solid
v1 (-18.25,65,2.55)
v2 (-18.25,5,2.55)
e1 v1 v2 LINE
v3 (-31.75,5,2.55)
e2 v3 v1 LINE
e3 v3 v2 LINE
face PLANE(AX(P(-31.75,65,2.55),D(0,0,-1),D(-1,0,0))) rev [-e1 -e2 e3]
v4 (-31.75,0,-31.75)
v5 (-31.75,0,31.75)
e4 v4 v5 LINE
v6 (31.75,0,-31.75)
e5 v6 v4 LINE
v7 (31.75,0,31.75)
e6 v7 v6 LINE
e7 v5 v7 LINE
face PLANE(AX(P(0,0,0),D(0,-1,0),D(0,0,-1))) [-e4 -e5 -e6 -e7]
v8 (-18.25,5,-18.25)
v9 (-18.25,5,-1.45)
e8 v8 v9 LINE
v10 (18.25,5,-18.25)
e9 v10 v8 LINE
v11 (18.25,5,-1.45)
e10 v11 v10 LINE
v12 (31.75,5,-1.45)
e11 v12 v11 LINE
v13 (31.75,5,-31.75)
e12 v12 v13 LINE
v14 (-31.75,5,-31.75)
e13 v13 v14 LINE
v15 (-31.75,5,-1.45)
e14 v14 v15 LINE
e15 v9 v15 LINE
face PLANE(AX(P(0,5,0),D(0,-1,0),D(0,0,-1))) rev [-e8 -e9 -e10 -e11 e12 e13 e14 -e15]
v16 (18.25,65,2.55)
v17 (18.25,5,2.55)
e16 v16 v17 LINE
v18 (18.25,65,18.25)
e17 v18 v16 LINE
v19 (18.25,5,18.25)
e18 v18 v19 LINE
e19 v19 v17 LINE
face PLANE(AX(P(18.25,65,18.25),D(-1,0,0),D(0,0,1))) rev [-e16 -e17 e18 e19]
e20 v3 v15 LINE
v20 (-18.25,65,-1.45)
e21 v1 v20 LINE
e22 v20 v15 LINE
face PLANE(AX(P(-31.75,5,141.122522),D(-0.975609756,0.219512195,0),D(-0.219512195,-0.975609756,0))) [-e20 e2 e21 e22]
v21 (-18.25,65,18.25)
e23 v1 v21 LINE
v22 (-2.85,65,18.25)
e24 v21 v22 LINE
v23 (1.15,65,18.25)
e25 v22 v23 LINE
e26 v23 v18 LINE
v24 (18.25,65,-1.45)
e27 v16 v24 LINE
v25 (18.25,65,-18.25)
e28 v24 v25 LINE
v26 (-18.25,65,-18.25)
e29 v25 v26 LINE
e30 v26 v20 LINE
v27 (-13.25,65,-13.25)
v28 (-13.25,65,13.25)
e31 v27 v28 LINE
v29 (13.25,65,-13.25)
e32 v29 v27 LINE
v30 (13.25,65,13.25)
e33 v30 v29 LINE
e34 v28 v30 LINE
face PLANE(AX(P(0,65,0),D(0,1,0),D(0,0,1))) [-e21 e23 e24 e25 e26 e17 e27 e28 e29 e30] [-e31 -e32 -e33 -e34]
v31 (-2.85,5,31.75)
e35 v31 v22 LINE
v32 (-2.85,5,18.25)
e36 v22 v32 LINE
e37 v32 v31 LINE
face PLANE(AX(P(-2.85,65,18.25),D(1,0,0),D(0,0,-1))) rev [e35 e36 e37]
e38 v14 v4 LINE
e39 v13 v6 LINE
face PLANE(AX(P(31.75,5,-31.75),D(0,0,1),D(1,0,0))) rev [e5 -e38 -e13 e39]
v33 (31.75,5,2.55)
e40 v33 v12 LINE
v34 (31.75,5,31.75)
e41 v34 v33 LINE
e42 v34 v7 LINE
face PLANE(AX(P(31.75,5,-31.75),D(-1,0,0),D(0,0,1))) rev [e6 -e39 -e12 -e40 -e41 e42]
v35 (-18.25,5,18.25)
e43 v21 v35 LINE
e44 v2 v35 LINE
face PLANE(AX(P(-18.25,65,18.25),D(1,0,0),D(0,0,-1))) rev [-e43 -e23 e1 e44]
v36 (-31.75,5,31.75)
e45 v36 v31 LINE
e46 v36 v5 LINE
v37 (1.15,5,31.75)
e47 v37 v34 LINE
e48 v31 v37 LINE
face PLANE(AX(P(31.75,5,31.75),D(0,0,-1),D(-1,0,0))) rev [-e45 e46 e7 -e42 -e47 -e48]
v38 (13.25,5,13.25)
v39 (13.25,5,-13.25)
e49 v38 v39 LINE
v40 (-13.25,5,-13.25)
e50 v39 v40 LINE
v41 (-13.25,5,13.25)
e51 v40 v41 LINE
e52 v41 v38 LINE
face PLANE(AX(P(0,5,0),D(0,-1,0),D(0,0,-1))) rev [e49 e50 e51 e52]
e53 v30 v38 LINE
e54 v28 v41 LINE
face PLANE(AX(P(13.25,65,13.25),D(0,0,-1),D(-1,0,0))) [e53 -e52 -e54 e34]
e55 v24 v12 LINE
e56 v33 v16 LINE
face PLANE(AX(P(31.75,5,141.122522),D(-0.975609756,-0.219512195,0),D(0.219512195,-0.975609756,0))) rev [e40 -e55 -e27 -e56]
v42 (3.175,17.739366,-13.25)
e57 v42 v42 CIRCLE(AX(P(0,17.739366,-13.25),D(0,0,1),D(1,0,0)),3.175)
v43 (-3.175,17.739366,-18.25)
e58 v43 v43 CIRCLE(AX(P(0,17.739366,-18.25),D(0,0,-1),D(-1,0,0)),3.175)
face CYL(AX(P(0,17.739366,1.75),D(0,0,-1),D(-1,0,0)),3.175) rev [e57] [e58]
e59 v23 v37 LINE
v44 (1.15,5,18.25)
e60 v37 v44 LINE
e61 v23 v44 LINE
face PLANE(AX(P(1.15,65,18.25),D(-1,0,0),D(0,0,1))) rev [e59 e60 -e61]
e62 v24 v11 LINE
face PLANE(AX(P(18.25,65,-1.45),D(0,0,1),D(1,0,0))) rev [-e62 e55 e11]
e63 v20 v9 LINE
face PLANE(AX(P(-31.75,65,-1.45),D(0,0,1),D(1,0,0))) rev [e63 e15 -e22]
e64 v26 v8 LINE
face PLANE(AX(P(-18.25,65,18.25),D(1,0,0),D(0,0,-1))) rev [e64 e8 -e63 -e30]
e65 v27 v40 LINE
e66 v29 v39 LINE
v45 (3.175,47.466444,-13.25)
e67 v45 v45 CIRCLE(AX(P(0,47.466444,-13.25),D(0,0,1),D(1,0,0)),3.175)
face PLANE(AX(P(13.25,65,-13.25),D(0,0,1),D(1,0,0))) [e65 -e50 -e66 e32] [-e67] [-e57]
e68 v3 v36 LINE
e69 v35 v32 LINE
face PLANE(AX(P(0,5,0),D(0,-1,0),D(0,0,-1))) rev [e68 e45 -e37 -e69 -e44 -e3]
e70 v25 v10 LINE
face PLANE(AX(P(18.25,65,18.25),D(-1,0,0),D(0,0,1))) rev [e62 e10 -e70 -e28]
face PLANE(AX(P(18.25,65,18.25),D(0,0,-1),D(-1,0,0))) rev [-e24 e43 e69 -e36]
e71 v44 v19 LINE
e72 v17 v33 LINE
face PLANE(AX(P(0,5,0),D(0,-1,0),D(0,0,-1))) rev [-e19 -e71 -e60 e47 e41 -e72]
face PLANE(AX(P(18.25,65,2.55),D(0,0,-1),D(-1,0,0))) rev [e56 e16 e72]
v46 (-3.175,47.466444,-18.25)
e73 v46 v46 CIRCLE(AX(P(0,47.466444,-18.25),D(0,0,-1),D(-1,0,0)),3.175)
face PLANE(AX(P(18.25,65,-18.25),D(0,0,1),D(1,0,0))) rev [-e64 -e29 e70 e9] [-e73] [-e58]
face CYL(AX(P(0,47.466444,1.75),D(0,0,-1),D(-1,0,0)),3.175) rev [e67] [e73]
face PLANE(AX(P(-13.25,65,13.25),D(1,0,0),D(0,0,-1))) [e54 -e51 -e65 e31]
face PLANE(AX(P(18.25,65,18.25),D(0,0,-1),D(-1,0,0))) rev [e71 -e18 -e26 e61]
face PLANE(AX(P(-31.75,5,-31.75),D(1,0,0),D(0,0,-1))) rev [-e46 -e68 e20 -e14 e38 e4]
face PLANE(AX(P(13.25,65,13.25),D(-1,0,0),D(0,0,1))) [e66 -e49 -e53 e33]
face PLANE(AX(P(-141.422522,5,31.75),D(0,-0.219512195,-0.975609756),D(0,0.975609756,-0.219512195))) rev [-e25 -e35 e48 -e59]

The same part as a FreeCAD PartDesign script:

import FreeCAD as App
import Part
import Sketcher

V = App.Vector
Q = App.Units.Quantity


def add_polygon(sketch, points):
    """Adds a closed chain of lines whose ends are joined by coincident constraints."""
    first, n = sketch.GeometryCount, len(points)
    for a, b in zip(points, points[1:] + points[:1]):
        sketch.addGeometry(Part.LineSegment(App.Vector(*a, 0), App.Vector(*b, 0)), False)
    for i in range(n):
        sketch.addConstraint(Sketcher.Constraint("Coincident", first + i, 2, first + (i + 1) % n, 1))

doc = App.newDocument("Part")
body = doc.addObject("PartDesign::Body", "Body")

# Sketch on XZ plane
sketch1 = body.newObject("Sketcher::SketchObject", "Sketch")
sketch1.AttachmentSupport = (doc.getObject("XZ_Plane"), [""])
sketch1.MapMode = "FlatFace"
add_polygon(sketch1, [(-32, -32), (-32, 32), (32, 32), (32, -32)])  # lines 0-3
sketch1.addConstraint([
    Sketcher.Constraint("Vertical", 0),
    Sketcher.Constraint("Horizontal", 1),
    Sketcher.Constraint("Vertical", 2),
    Sketcher.Constraint("Horizontal", 3),
    Sketcher.Constraint("Symmetric", 0, 2, 2, 2, -1, 1),
    Sketcher.Constraint("Equal", 3, 0),
    Sketcher.Constraint("DistanceX", 1, 1, 1, 2, Q("63.5 mm")),
])
pad1 = body.newObject("PartDesign::Pad", "Pad")
pad1.Profile = sketch1
pad1.Length = 5
pad1.Reversed = True

# Sketch on XZ plane
sketch2 = body.newObject("Sketcher::SketchObject", "Sketch001")
sketch2.AttachmentSupport = (doc.getObject("XZ_Plane"), [""])
sketch2.MapMode = "FlatFace"
sketch2.AttachmentOffset = App.Placement(V(0, 0, -5), App.Rotation())
add_polygon(sketch2, [(-18, -18), (-18, 18), (18, 18), (18, -18)])  # lines 0-3
add_polygon(sketch2, [(13, 13), (-13, 13), (-13, -13), (13, -13)])  # lines 4-7
sketch2.addConstraint([
    Sketcher.Constraint("Vertical", 0),
    Sketcher.Constraint("Horizontal", 1),
    Sketcher.Constraint("Vertical", 2),
    Sketcher.Constraint("Horizontal", 3),
    Sketcher.Constraint("Horizontal", 4),
    Sketcher.Constraint("Vertical", 5),
    Sketcher.Constraint("Horizontal", 6),
    Sketcher.Constraint("Vertical", 7),
    Sketcher.Constraint("Symmetric", 0, 2, 2, 2, -1, 1),
    Sketcher.Constraint("Symmetric", 4, 2, 6, 2, -1, 1),
    Sketcher.Constraint("Equal", 3, 0),
    Sketcher.Constraint("Equal", 6, 5),
    Sketcher.Constraint("DistanceX", 1, 1, 1, 2, Q("36.5 mm")),
    Sketcher.Constraint("DistanceX", 4, 2, 4, 1, Q("26.5 mm")),
])
pad2 = body.newObject("PartDesign::Pad", "Pad001")
pad2.Profile = sketch2
pad2.Length = 60
pad2.Reversed = True

# Sketch on XZ plane
sketch3 = body.newObject("Sketcher::SketchObject", "Sketch002")
sketch3.AttachmentSupport = (doc.getObject("XZ_Plane"), [""])
sketch3.MapMode = "FlatFace"
sketch3.AttachmentOffset = App.Placement(V(0, 0, -5), App.Rotation())
add_polygon(sketch3, [(-31.8, -1.4), (-31.8, 2.5), (-18.2, 2.5), (-18.2, -1.4)])  # lines 0-3
sketch3.addConstraint([
    Sketcher.Constraint("Vertical", 0),
    Sketcher.Constraint("Horizontal", 1),
    Sketcher.Constraint("Vertical", 2),
    Sketcher.Constraint("Horizontal", 3),
    Sketcher.Constraint("DistanceY", 0, 1, 0, 2, Q("4 mm")),
    Sketcher.Constraint("DistanceX", 1, 1, 1, 2, Q("13.5 mm")),
    Sketcher.Constraint("DistanceX", 0, 2, -1, 1, Q("31.75 mm")),
    Sketcher.Constraint("DistanceY", -1, 1, 0, 2, Q("2.55 mm")),
])
pad3 = body.newObject("PartDesign::Pad", "Pad002")
pad3.Profile = sketch3
pad3.Length = 60
pad3.Reversed = True

# Sketch on XY plane
sketch4 = body.newObject("Sketcher::SketchObject", "Sketch003")
sketch4.AttachmentSupport = (doc.getObject("XY_Plane"), [""])
sketch4.MapMode = "FlatFace"
sketch4.AttachmentOffset = App.Placement(V(0, 0, 2.55), App.Rotation())
add_polygon(sketch4, [(-72, -175), (22, 245), (-338, 326), (-433, -94)])  # lines 0-3
sketch4.addConstraint([
    Sketcher.Constraint("Perpendicular", 0, 1),
    Sketcher.Constraint("Perpendicular", 1, 2),
    Sketcher.Constraint("Perpendicular", 2, 3),
    Sketcher.Constraint("DistanceY", -1, 1, 0, 2, Q("245.219999 mm")),
    Sketcher.Constraint("DistanceY", 3, 2, -1, 1, Q("175.219999 mm")),
    Sketcher.Constraint("DistanceX", 1, 2, 0, 2, Q("360.439998 mm")),
    Sketcher.Constraint("DistanceY", -1, 1, 1, 2, Q("326.318999 mm")),
    Sketcher.Constraint("DistanceX", -1, 1, 0, 2, Q("22.2995 mm")),
])
pocket1 = body.newObject("PartDesign::Pocket", "Pocket")
pocket1.Profile = sketch4
pocket1.Type = "ThroughAll"
pocket1.Midplane = True

# Sketch on XZ plane
sketch5 = body.newObject("Sketcher::SketchObject", "Sketch004")
sketch5.AttachmentSupport = (doc.getObject("XZ_Plane"), [""])
sketch5.MapMode = "FlatFace"
sketch5.AttachmentOffset = App.Placement(V(0, 0, -5), App.Rotation())
add_polygon(sketch5, [(18.2, -1.4), (18.2, 2.5), (31.8, 2.5), (31.8, -1.4)])  # lines 0-3
sketch5.addConstraint([
    Sketcher.Constraint("Vertical", 0),
    Sketcher.Constraint("Horizontal", 1),
    Sketcher.Constraint("Vertical", 2),
    Sketcher.Constraint("Horizontal", 3),
    Sketcher.Constraint("DistanceY", 0, 1, 0, 2, Q("4 mm")),
    Sketcher.Constraint("DistanceX", 1, 1, 1, 2, Q("13.5 mm")),
    Sketcher.Constraint("DistanceX", -1, 1, 0, 2, Q("18.25 mm")),
    Sketcher.Constraint("DistanceY", -1, 1, 0, 2, Q("2.55 mm")),
])
pad4 = body.newObject("PartDesign::Pad", "Pad003")
pad4.Profile = sketch5
pad4.Length = 60
pad4.Reversed = True

# Sketch on XY plane
sketch6 = body.newObject("Sketcher::SketchObject", "Sketch005")
sketch6.AttachmentSupport = (doc.getObject("XY_Plane"), [""])
sketch6.MapMode = "FlatFace"
sketch6.AttachmentOffset = App.Placement(V(0, 0, 2.55), App.Rotation())
add_polygon(sketch6, [(-22, 245), (72, -175), (433, -94), (338, 326)])  # lines 0-3
sketch6.addConstraint([
    Sketcher.Constraint("Perpendicular", 0, 1),
    Sketcher.Constraint("Perpendicular", 1, 2),
    Sketcher.Constraint("Perpendicular", 2, 3),
    Sketcher.Constraint("DistanceY", 0, 2, -1, 1, Q("175.219999 mm")),
    Sketcher.Constraint("DistanceY", -1, 1, 3, 2, Q("245.219999 mm")),
    Sketcher.Constraint("DistanceX", 0, 2, 1, 2, Q("360.439998 mm")),
    Sketcher.Constraint("DistanceY", 1, 2, -1, 1, Q("94.120999 mm")),
    Sketcher.Constraint("DistanceX", -1, 1, 0, 2, Q("72.2995 mm")),
])
pocket2 = body.newObject("PartDesign::Pocket", "Pocket001")
pocket2.Profile = sketch6
pocket2.Type = "ThroughAll"
pocket2.Midplane = True

# Sketch on XZ plane
sketch7 = body.newObject("Sketcher::SketchObject", "Sketch006")
sketch7.AttachmentSupport = (doc.getObject("XZ_Plane"), [""])
sketch7.MapMode = "FlatFace"
sketch7.AttachmentOffset = App.Placement(V(0, 0, -5), App.Rotation())
add_polygon(sketch7, [(-2.9, 18.2), (-2.9, 31.8), (1.1, 31.8), (1.1, 18.2)])  # lines 0-3
sketch7.addConstraint([
    Sketcher.Constraint("Vertical", 0),
    Sketcher.Constraint("Horizontal", 1),
    Sketcher.Constraint("Vertical", 2),
    Sketcher.Constraint("Horizontal", 3),
    Sketcher.Constraint("DistanceX", 1, 1, 1, 2, Q("4 mm")),
    Sketcher.Constraint("DistanceY", 0, 1, 0, 2, Q("13.5 mm")),
    Sketcher.Constraint("DistanceX", 0, 2, -1, 1, Q("2.85 mm")),
    Sketcher.Constraint("DistanceY", -1, 1, 0, 2, Q("31.75 mm")),
])
pad5 = body.newObject("PartDesign::Pad", "Pad004")
pad5.Profile = sketch7
pad5.Length = 60
pad5.Reversed = True

# Sketch on YZ plane
sketch8 = body.newObject("Sketcher::SketchObject", "Sketch007")
sketch8.AttachmentSupport = (doc.getObject("YZ_Plane"), [""])
sketch8.MapMode = "FlatFace"
sketch8.AttachmentOffset = App.Placement(V(0, 0, -2.85), App.Rotation())
add_polygon(sketch8, [(245, -22), (-175, 72), (-94, 433), (326, 338)])  # lines 0-3
sketch8.addConstraint([
    Sketcher.Constraint("Perpendicular", 0, 1),
    Sketcher.Constraint("Perpendicular", 1, 2),
    Sketcher.Constraint("Perpendicular", 2, 3),
    Sketcher.Constraint("DistanceX", 0, 2, -1, 1, Q("175.219999 mm")),
    Sketcher.Constraint("DistanceX", -1, 1, 3, 2, Q("245.219999 mm")),
    Sketcher.Constraint("DistanceY", 0, 2, 1, 2, Q("360.439998 mm")),
    Sketcher.Constraint("DistanceX", 1, 2, -1, 1, Q("94.120999 mm")),
    Sketcher.Constraint("DistanceY", -1, 1, 0, 2, Q("72.2995 mm")),
])
pocket3 = body.newObject("PartDesign::Pocket", "Pocket002")
pocket3.Profile = sketch8
pocket3.Type = "ThroughAll"
pocket3.Midplane = True

# Sketch on XY plane
sketch9 = body.newObject("Sketcher::SketchObject", "Sketch008")
sketch9.AttachmentSupport = (doc.getObject("XY_Plane"), [""])
sketch9.MapMode = "FlatFace"
sketch9.AttachmentOffset = App.Placement(V(0, 0, -18.25), App.Rotation())
sketch9.addGeometry([
    Part.Circle(V(0, 17.7, 0), V(0, 0, 1), 3.2),
    Part.Circle(V(0, 47.5, 0), V(0, 0, 1), 3.2),
], False)
sketch9.addConstraint([
    Sketcher.Constraint("Equal", 0, 1),
    Sketcher.Constraint("PointOnObject", 0, 3, -2),
    Sketcher.Constraint("PointOnObject", 1, 3, -2),
    Sketcher.Constraint("Diameter", 0, Q("6.35 mm")),
    Sketcher.Constraint("DistanceY", 0, 3, 1, 3, Q("29.727078 mm")),
    Sketcher.Constraint("DistanceY", -1, 1, 0, 3, Q("17.739366 mm")),
])
pocket4 = body.newObject("PartDesign::Pocket", "Pocket003")
pocket4.Profile = sketch9
pocket4.Length = 20
pocket4.Reversed = True

doc.recompute()
